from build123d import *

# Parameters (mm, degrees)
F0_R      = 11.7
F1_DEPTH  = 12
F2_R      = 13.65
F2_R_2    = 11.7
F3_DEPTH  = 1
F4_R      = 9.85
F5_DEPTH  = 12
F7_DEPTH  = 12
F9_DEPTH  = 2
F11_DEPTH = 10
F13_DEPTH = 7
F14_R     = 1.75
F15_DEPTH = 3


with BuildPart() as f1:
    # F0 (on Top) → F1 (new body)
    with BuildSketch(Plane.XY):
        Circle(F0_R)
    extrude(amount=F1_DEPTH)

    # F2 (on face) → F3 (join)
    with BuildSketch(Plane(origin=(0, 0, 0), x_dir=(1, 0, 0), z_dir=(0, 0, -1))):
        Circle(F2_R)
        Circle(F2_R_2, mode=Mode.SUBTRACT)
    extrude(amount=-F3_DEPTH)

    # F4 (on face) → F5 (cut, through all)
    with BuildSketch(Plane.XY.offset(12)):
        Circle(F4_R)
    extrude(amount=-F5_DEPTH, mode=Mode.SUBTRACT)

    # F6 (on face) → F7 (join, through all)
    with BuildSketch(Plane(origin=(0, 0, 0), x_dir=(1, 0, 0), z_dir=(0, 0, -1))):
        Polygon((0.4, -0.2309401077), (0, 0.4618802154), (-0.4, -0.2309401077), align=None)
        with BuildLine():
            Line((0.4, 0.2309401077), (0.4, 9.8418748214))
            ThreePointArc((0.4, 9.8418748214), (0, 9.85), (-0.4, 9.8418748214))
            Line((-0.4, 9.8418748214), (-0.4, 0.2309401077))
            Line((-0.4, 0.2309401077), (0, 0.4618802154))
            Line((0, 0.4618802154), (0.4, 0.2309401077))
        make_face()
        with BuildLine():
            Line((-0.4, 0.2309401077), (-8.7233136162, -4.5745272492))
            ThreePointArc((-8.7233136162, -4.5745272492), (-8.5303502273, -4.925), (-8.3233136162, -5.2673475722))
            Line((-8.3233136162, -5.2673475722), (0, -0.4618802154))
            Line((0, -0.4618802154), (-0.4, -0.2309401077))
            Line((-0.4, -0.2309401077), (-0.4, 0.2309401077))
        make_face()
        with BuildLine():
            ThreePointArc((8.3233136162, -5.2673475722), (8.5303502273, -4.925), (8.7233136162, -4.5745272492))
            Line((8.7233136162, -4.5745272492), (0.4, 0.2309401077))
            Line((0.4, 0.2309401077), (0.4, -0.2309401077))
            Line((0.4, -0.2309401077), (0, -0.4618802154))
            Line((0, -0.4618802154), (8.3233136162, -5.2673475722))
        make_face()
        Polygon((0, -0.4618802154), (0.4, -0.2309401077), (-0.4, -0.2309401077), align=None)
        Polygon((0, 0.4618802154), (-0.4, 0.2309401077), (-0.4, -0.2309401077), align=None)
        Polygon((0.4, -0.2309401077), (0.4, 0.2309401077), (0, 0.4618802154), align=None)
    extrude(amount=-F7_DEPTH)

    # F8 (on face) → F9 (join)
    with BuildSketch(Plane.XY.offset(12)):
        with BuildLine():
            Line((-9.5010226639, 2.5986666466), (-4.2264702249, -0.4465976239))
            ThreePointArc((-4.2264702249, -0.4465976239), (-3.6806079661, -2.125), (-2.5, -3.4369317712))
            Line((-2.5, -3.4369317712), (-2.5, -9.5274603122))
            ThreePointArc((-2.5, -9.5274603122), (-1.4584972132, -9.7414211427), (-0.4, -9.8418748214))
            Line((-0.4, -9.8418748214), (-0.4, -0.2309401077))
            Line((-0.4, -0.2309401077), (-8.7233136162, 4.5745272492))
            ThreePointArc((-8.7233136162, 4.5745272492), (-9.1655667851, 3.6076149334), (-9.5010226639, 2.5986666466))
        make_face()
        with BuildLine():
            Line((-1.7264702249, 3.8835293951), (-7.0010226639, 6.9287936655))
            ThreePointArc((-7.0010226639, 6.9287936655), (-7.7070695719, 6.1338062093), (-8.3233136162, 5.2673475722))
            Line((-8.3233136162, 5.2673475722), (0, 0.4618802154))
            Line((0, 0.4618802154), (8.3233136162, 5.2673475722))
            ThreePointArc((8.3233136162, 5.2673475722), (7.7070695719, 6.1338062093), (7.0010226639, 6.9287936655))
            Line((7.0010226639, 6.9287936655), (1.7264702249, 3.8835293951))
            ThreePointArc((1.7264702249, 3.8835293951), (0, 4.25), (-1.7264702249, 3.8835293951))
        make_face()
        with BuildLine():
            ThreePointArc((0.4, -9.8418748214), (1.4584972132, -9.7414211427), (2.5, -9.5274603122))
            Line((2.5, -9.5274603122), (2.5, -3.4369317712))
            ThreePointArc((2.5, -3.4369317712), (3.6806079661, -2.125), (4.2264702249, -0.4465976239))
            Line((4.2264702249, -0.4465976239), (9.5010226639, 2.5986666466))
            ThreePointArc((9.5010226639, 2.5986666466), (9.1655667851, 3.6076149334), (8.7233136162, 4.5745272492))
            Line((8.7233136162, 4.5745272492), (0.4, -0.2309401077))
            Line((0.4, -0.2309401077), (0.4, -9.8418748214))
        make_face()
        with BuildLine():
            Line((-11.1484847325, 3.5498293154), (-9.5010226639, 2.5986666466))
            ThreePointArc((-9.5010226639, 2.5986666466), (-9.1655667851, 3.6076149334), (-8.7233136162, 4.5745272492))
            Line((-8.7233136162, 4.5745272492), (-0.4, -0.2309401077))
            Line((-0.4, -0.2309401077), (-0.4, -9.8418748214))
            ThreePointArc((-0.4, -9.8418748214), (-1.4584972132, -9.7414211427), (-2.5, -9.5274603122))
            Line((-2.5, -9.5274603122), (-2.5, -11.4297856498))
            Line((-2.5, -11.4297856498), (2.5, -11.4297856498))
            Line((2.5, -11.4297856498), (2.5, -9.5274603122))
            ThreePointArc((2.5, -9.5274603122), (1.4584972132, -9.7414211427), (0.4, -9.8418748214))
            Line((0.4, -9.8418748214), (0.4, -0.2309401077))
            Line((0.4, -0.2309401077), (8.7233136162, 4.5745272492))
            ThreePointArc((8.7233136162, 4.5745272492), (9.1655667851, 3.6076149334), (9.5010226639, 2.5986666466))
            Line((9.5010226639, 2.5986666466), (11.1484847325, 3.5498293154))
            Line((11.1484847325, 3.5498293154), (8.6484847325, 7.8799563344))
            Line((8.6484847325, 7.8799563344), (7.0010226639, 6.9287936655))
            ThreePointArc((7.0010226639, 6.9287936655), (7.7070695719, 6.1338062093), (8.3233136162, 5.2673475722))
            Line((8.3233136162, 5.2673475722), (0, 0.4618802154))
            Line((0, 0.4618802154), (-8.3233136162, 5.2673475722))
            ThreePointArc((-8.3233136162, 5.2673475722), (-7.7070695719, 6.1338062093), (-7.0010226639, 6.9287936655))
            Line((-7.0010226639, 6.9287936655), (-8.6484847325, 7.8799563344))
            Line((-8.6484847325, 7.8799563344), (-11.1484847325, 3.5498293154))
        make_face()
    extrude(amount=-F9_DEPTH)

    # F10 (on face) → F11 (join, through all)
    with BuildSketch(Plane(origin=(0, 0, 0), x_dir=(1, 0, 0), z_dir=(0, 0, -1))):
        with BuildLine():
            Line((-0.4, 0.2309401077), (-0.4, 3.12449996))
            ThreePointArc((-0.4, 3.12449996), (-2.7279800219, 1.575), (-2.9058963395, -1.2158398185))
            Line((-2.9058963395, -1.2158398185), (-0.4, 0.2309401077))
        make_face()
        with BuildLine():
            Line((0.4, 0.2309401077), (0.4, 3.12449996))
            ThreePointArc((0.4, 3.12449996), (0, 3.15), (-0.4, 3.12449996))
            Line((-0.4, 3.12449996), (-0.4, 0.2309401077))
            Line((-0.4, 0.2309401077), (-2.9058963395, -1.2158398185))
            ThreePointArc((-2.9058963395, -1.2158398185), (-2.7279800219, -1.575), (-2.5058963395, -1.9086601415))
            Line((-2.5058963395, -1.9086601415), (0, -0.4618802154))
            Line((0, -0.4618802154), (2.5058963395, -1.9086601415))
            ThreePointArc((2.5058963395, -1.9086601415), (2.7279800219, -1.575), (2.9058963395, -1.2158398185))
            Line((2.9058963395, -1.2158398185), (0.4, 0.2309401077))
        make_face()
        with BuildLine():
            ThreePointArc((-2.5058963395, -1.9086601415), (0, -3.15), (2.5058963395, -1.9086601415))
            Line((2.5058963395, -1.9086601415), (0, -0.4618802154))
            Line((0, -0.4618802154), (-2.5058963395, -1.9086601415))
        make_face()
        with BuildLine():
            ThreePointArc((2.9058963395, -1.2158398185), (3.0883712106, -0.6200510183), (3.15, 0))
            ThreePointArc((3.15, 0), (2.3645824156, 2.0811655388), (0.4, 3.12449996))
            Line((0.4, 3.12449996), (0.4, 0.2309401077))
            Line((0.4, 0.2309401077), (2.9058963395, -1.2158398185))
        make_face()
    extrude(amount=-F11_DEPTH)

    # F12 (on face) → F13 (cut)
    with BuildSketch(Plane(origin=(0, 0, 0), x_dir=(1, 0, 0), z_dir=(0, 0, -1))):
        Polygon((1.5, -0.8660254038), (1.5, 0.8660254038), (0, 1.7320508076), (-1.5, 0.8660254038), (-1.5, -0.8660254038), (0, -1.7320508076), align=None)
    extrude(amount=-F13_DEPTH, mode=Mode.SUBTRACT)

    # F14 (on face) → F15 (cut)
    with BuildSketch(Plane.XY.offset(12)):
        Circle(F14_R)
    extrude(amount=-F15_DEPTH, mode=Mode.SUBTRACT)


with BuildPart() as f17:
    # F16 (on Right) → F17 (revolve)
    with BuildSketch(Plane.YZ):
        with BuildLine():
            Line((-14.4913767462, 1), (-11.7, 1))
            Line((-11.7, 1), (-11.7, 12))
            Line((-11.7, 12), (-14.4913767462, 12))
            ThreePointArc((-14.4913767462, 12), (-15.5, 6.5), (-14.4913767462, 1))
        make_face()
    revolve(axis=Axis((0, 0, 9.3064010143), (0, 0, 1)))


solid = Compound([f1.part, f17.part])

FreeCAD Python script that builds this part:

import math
import FreeCAD as App
import Part
import Sketcher
Q = App.Units.Quantity

doc = App.newDocument("Part")
params = doc.addObject("Spreadsheet::Sheet", "Params")
for row, (alias, value) in enumerate([
    ("sketch1_diameter", "23.4 mm"),
    ("pad1_length", "12 mm"),
    ("sketch2_diameter", "27.3 mm"),
    ("sketch2_diameter2", "23.4 mm"),
    ("pad2_length", "1 mm"),
    ("sketch3_diameter", "19.7 mm"),
    ("sketch4_radius", "9.85 mm"),
    ("pad3_length", "12 mm"),
    ("sketch5_width", "5 mm"),
    ("sketch5_radius", "4.25 mm"),
    ("sketch5_length", "5 mm"),
    ("pad4_length", "2 mm"),
    ("sketch6_radius", "3.15 mm"),
    ("pocket2_length", "7 mm"),
    ("sketch8_diameter", "3.5 mm"),
    ("pocket3_length", "3 mm"),
    ("sketch9_radius", "15.5 mm"),
    ("sketch9_height", "11 mm"),
    ("revolution_angle", "360 deg"),
], start=1):
    params.set(f"A{row}", alias)
    params.set(f"B{row}", "=" + value)
    params.setAlias(f"B{row}", alias)

body = doc.addObject("PartDesign::Body", "Body")

# Sketch on XY plane
sketch1 = body.newObject("Sketcher::SketchObject", "Sketch")
sketch1.AttachmentSupport = (doc.getObject("XY_Plane"), [""])
sketch1.MapMode = "FlatFace"
sketch1.addGeometry(Part.Circle(App.Vector(0, 0, 0), App.Vector(0, 0, 1), 11.7), False)
sketch1.addConstraint([
    Sketcher.Constraint("Coincident", 0, 3, -1, 1),
    Sketcher.Constraint("Diameter", 0, 23.4),
])
sketch1.setExpression("Constraints[1]", "Params.sketch1_diameter")
pad1 = body.newObject("PartDesign::Pad", "Pad")
pad1.Profile = sketch1
pad1.setExpression("Length", "Params.pad1_length")

# Sketch on XY plane
sketch2 = body.newObject("Sketcher::SketchObject", "Sketch001")
sketch2.AttachmentSupport = (doc.getObject("XY_Plane"), [""])
sketch2.MapMode = "FlatFace"
sketch2.addGeometry([
    Part.Circle(App.Vector(0, 0, 0), App.Vector(0, 0, 1), 13.65),
    Part.Circle(App.Vector(0, 0, 0), App.Vector(0, 0, 1), 11.7),
], False)
sketch2.addConstraint([
    Sketcher.Constraint("Coincident", 0, 3, -1, 1),
    Sketcher.Constraint("Coincident", 1, 3, -1, 1),
    Sketcher.Constraint("Diameter", 0, 27.3),
    Sketcher.Constraint("Diameter", 1, 23.4),
])
sketch2.setExpression("Constraints[2]", "Params.sketch2_diameter")
sketch2.setExpression("Constraints[3]", "Params.sketch2_diameter2")
pad2 = body.newObject("PartDesign::Pad", "Pad001")
pad2.Profile = sketch2
pad2.setExpression("Length", "Params.pad2_length")

# Sketch on XY plane
sketch3 = body.newObject("Sketcher::SketchObject", "Sketch002")
sketch3.AttachmentSupport = (doc.getObject("XY_Plane"), [""])
sketch3.MapMode = "FlatFace"
sketch3.AttachmentOffset = App.Placement(App.Vector(0, 0, 12), App.Rotation())
sketch3.addGeometry(Part.Circle(App.Vector(0, 0, 0), App.Vector(0, 0, 1), 9.85), False)
sketch3.addConstraint([
    Sketcher.Constraint("Coincident", 0, 3, -1, 1),
    Sketcher.Constraint("Diameter", 0, 19.7),
])
sketch3.setExpression("Constraints[1]", "Params.sketch3_diameter")
pocket1 = body.newObject("PartDesign::Pocket", "Pocket")
pocket1.Profile = sketch3
pocket1.Type = "ThroughAll"

# Sketch on XY plane
sketch4 = body.newObject("Sketcher::SketchObject", "Sketch003")
sketch4.AttachmentSupport = (doc.getObject("XY_Plane"), [""])
sketch4.MapMode = "FlatFace"
sketch4.addGeometry([
    Part.LineSegment(App.Vector(8.723314, 4.574527, 0), App.Vector(0.4, -0.23094, 0)),  # 0
    Part.LineSegment(App.Vector(0.4, -0.23094, 0), App.Vector(0.4, -9.841875, 0)),  # 1
    Part.ArcOfCircle(Part.Circle(App.Vector(0, 0, 0), App.Vector(0, 0, 1), 9.85), math.radians(-92.327372), math.radians(-87.672628)),  # 2
    Part.LineSegment(App.Vector(-0.4, -9.841875, 0), App.Vector(-0.4, -0.23094, 0)),  # 3
    Part.LineSegment(App.Vector(-0.4, -0.23094, 0), App.Vector(-8.723314, 4.574527, 0)),  # 4
    Part.ArcOfCircle(Part.Circle(App.Vector(0, 0, 0), App.Vector(0, 0, 1), 9.85), math.radians(147.672628), math.radians(152.327372)),  # 5
    Part.LineSegment(App.Vector(-8.323314, 5.267348, 0), App.Vector(0, 0.46188, 0)),  # 6
    Part.LineSegment(App.Vector(0, 0.46188, 0), App.Vector(8.323314, 5.267348, 0)),  # 7
    Part.ArcOfCircle(Part.Circle(App.Vector(0, 0, 0), App.Vector(0, 0, 1), 9.85), math.radians(27.672628), math.radians(32.327372)),  # 8
], False)
sketch4.addConstraint([
    Sketcher.Constraint("Coincident", 0, 2, 1, 1),
    Sketcher.Constraint("Coincident", 1, 2, 2, 2),
    Sketcher.Constraint("Coincident", 2, 1, 3, 1),
    Sketcher.Constraint("Coincident", 3, 2, 4, 1),
    Sketcher.Constraint("Coincident", 4, 2, 5, 2),
    Sketcher.Constraint("Coincident", 5, 1, 6, 1),
    Sketcher.Constraint("Coincident", 6, 2, 7, 1),
    Sketcher.Constraint("Coincident", 7, 2, 8, 2),
    Sketcher.Constraint("Coincident", 8, 1, 0, 1),
    Sketcher.Constraint("Vertical", 1),
    Sketcher.Constraint("Vertical", 3),
    Sketcher.Constraint("Coincident", 2, 3, -1, 1),
    Sketcher.Constraint("Coincident", 5, 3, -1, 1),
    Sketcher.Constraint("Coincident", 8, 3, -1, 1),
    Sketcher.Constraint("Equal", 2, 5),
    Sketcher.Constraint("Equal", 5, 8),
    Sketcher.Constraint("Symmetric", 0, 2, 3, 2, -2),
    Sketcher.Constraint("PointOnObject", 6, 2, -2),
    Sketcher.Constraint("Parallel", 4, 6),
    Sketcher.Constraint("Parallel", 0, 7),
    Sketcher.Constraint("Horizontal", 5, 1, 7, 2),
    Sketcher.Constraint("Equal", 4, 6),
    Sketcher.Constraint("Angle", 0, Q("-150 deg")),
    Sketcher.Constraint("Radius", 2, 9.85),
    Sketcher.Constraint("DistanceX", -1, 1, 0, 2, 0.4),
    Sketcher.Constraint("DistanceY", 1, 2, 1, 1, 9.610935),
])
sketch4.setExpression("Constraints[23]", "Params.sketch4_radius")
pad3 = body.newObject("PartDesign::Pad", "Pad002")
pad3.Profile = sketch4
pad3.setExpression("Length", "Params.pad3_length")

# Sketch on XY plane
sketch5 = body.newObject("Sketcher::SketchObject", "Sketch004")
sketch5.AttachmentSupport = (doc.getObject("XY_Plane"), [""])
sketch5.MapMode = "FlatFace"
sketch5.AttachmentOffset = App.Placement(App.Vector(0, 0, 12), App.Rotation())
sketch5.addGeometry([
    Part.LineSegment(App.Vector(-9.501023, 2.598667, 0), App.Vector(-4.22647, -0.446598, 0)),  # 0
    Part.ArcOfCircle(Part.Circle(App.Vector(0, 0, 0), App.Vector(0, 0, 1), 4.25), math.radians(-173.968121), math.radians(-126.031879)),  # 1
    Part.LineSegment(App.Vector(-2.5, -3.436932, 0), App.Vector(-2.5, -11.429786, 0)),  # 2
    Part.LineSegment(App.Vector(-2.5, -11.429786, 0), App.Vector(2.5, -11.429786, 0)),  # 3
    Part.LineSegment(App.Vector(2.5, -11.429786, 0), App.Vector(2.5, -3.436932, 0)),  # 4
    Part.ArcOfCircle(Part.Circle(App.Vector(0, 0, 0), App.Vector(0, 0, 1), 4.25), math.radians(-53.968121), math.radians(-6.031879)),  # 5
    Part.LineSegment(App.Vector(4.22647, -0.446598, 0), App.Vector(9.501023, 2.598667, 0)),  # 6
    Part.LineSegment(App.Vector(9.501023, 2.598667, 0), App.Vector(11.148485, 3.549829, 0)),  # 7
    Part.LineSegment(App.Vector(11.148485, 3.549829, 0), App.Vector(8.648485, 7.879956, 0)),  # 8
    Part.LineSegment(App.Vector(8.648485, 7.879956, 0), App.Vector(7.001023, 6.928794, 0)),  # 9
    Part.LineSegment(App.Vector(7.001023, 6.928794, 0), App.Vector(1.72647, 3.883529, 0)),  # 10
    Part.ArcOfCircle(Part.Circle(App.Vector(0, 0, 0), App.Vector(0, 0, 1), 4.25), math.radians(66.031879), math.radians(113.968121)),  # 11
    Part.LineSegment(App.Vector(-1.72647, 3.883529, 0), App.Vector(-7.001023, 6.928794, 0)),  # 12
    Part.LineSegment(App.Vector(-7.001023, 6.928794, 0), App.Vector(-8.648485, 7.879956, 0)),  # 13
    Part.LineSegment(App.Vector(-8.648485, 7.879956, 0), App.Vector(-11.148485, 3.549829, 0)),  # 14
    Part.LineSegment(App.Vector(-11.148485, 3.549829, 0), App.Vector(-9.501023, 2.598667, 0)),  # 15
], False)
sketch5.addConstraint([
    Sketcher.Constraint("Coincident", 0, 2, 1, 1),
    Sketcher.Constraint("Coincident", 1, 2, 2, 1),
    Sketcher.Constraint("Coincident", 2, 2, 3, 1),
    Sketcher.Constraint("Coincident", 3, 2, 4, 1),
    Sketcher.Constraint("Coincident", 4, 2, 5, 1),
    Sketcher.Constraint("Coincident", 5, 2, 6, 1),
    Sketcher.Constraint("Coincident", 6, 2, 7, 1),
    Sketcher.Constraint("Coincident", 7, 2, 8, 1),
    Sketcher.Constraint("Coincident", 8, 2, 9, 1),
    Sketcher.Constraint("Coincident", 9, 2, 10, 1),
    Sketcher.Constraint("Coincident", 10, 2, 11, 1),
    Sketcher.Constraint("Coincident", 11, 2, 12, 1),
    Sketcher.Constraint("Coincident", 12, 2, 13, 1),
    Sketcher.Constraint("Coincident", 13, 2, 14, 1),
    Sketcher.Constraint("Coincident", 14, 2, 15, 1),
    Sketcher.Constraint("Coincident", 15, 2, 0, 1),
    Sketcher.Constraint("Vertical", 2),
    Sketcher.Constraint("Horizontal", 3),
    Sketcher.Constraint("Vertical", 4),
    Sketcher.Constraint("Coincident", 1, 3, -1, 1),
    Sketcher.Constraint("Coincident", 5, 3, -1, 1),
    Sketcher.Constraint("Coincident", 11, 3, -1, 1),
    Sketcher.Constraint("Equal", 1, 5),
    Sketcher.Constraint("Equal", 5, 11),
    Sketcher.Constraint("Symmetric", 9, 2, 12, 2, -2),
    Sketcher.Constraint("Symmetric", 8, 2, 13, 2, -2),
    Sketcher.Constraint("Symmetric", 7, 2, 14, 2, -2),
    Sketcher.Constraint("Symmetric", 6, 2, 15, 2, -2),
    Sketcher.Constraint("Parallel", 6, 7),
    Sketcher.Constraint("Perpendicular", 7, 8),
    Sketcher.Constraint("Perpendicular", 8, 9),
    Sketcher.Constraint("Parallel", 9, 10),
    Sketcher.Constraint("Parallel", 0, 12),
    Sketcher.Constraint("Parallel", 12, 13),
    Sketcher.Constraint("Horizontal", 1, 2, 4, 2),
    Sketcher.Constraint("Equal", 7, 9),
    Sketcher.Constraint("Equal", 6, 10),
    Sketcher.Constraint("DistanceX", 3, 1, 3, 2, 5.0),
    Sketcher.Constraint("Angle", 0, Q("-30 deg")),
    Sketcher.Constraint("Radius", 1, 4.25),
    Sketcher.Constraint("Distance", 8, 5.0),
    Sketcher.Constraint("DistanceY", 4, 2, 6, 2, 6.035598),
    Sketcher.Constraint("DistanceY", 14, 2, 11, 2, 0.3337),
    Sketcher.Constraint("DistanceY", 2, 2, 2, 1, 7.992854),
])
sketch5.setExpression("Constraints[37]", "Params.sketch5_width")
sketch5.setExpression("Constraints[39]", "Params.sketch5_radius")
sketch5.setExpression("Constraints[40]", "Params.sketch5_length")
pad4 = body.newObject("PartDesign::Pad", "Pad003")
pad4.Profile = sketch5
pad4.setExpression("Length", "Params.pad4_length")
pad4.Reversed = True

# Sketch on XY plane
sketch6 = body.newObject("Sketcher::SketchObject", "Sketch005")
sketch6.AttachmentSupport = (doc.getObject("XY_Plane"), [""])
sketch6.MapMode = "FlatFace"
sketch6.addGeometry([
    Part.ArcOfCircle(Part.Circle(App.Vector(0, 0, 0), App.Vector(0, 0, 1), 3.15), math.radians(157.295351), math.radians(262.704649)),  # 0
    Part.ArcOfCircle(Part.Circle(App.Vector(0, 0, 0), App.Vector(0, 0, 1), 3.15), math.radians(142.704649), math.radians(157.295351)),  # 1
    Part.ArcOfCircle(Part.Circle(App.Vector(0, 0, 0), App.Vector(0, 0, 1), 3.15), math.radians(37.295351), math.radians(142.704649)),  # 2
    Part.ArcOfCircle(Part.Circle(App.Vector(0, 0, 0), App.Vector(0, 0, 1), 3.15), math.radians(22.704649), math.radians(37.295351)),  # 3
    Part.ArcOfCircle(Part.Circle(App.Vector(0, 0, 0), App.Vector(0, 0, 1), 3.15), math.radians(0), math.radians(22.704649)),  # 4
    Part.ArcOfCircle(Part.Circle(App.Vector(0, 0, 0), App.Vector(0, 0, 1), 3.15), math.radians(-82.704649), math.radians(0)),  # 5
    Part.ArcOfCircle(Part.Circle(App.Vector(0, 0, 0), App.Vector(0, 0, 1), 3.15), math.radians(-97.295351), math.radians(-82.704649)),  # 6
], False)
sketch6.addConstraint([
    Sketcher.Constraint("Tangent", 0, 1, 1, 2),
    Sketcher.Constraint("Tangent", 1, 1, 2, 2),
    Sketcher.Constraint("Tangent", 2, 1, 3, 2),
    Sketcher.Constraint("Tangent", 3, 1, 4, 2),
    Sketcher.Constraint("Tangent", 4, 1, 5, 2),
    Sketcher.Constraint("Tangent", 5, 1, 6, 2),
    Sketcher.Constraint("Tangent", 6, 1, 0, 2),
    Sketcher.Constraint("Coincident", 0, 3, -1, 1),
    Sketcher.Constraint("Coincident", 2, 3, -1, 1),
    Sketcher.Constraint("Coincident", 4, 3, -1, 1),
    Sketcher.Constraint("PointOnObject", 4, 1, -1),
    Sketcher.Constraint("Horizontal", 1, 1, 2, 1),
    Sketcher.Constraint("Horizontal", 0, 1, 3, 1),
    Sketcher.Constraint("Horizontal", 5, 1, 6, 1),
    Sketcher.Constraint("Radius", 0, 3.15),
    Sketcher.Constraint("DistanceX", -1, 1, 5, 1, 0.4),
    Sketcher.Constraint("DistanceX", 0, 1, 1, 1, 0.4),
    Sketcher.Constraint("DistanceY", -1, 1, 0, 1, 1.21584),
])
sketch6.setExpression("Constraints[14]", "Params.sketch6_radius")
pad5 = body.newObject("PartDesign::Pad", "Pad004")
pad5.Profile = sketch6
pad5.Type = "UpToLast"

# Sketch on XY plane
sketch7 = body.newObject("Sketcher::SketchObject", "Sketch006")
sketch7.AttachmentSupport = (doc.getObject("XY_Plane"), [""])
sketch7.MapMode = "FlatFace"
sketch7.addGeometry([
    Part.LineSegment(App.Vector(1.5, 0.866025, 0), App.Vector(1.5, -0.866025, 0)),  # 0
    Part.LineSegment(App.Vector(1.5, -0.866025, 0), App.Vector(0, -1.732051, 0)),  # 1
    Part.LineSegment(App.Vector(0, -1.732051, 0), App.Vector(-1.5, -0.866025, 0)),  # 2
    Part.LineSegment(App.Vector(-1.5, -0.866025, 0), App.Vector(-1.5, 0.866025, 0)),  # 3
    Part.LineSegment(App.Vector(-1.5, 0.866025, 0), App.Vector(0, 1.732051, 0)),  # 4
    Part.LineSegment(App.Vector(0, 1.732051, 0), App.Vector(1.5, 0.866025, 0)),  # 5
], False)
sketch7.addConstraint([
    Sketcher.Constraint("Coincident", 0, 2, 1, 1),
    Sketcher.Constraint("Coincident", 1, 2, 2, 1),
    Sketcher.Constraint("Coincident", 2, 2, 3, 1),
    Sketcher.Constraint("Coincident", 3, 2, 4, 1),
    Sketcher.Constraint("Coincident", 4, 2, 5, 1),
    Sketcher.Constraint("Coincident", 5, 2, 0, 1),
    Sketcher.Constraint("Vertical", 0),
    Sketcher.Constraint("Vertical", 3),
    Sketcher.Constraint("Symmetric", 0, 2, 3, 2, -1, 1),
    Sketcher.Constraint("Symmetric", 1, 2, 4, 2, -1, 1),
    Sketcher.Constraint("PointOnObject", 1, 2, -2),
    Sketcher.Constraint("Parallel", 2, 5),
    Sketcher.Constraint("Horizontal", 0, 2, 2, 2),
    Sketcher.Constraint("Angle", 1, Q("-150 deg")),
    Sketcher.Constraint("DistanceX", 2, 2, 0, 2, 3.0),
    Sketcher.Constraint("DistanceY", 0, 2, 0, 1, 1.732051),
])
pocket2 = body.newObject("PartDesign::Pocket", "Pocket001")
pocket2.Profile = sketch7
pocket2.setExpression("Length", "Params.pocket2_length")
pocket2.Reversed = True

# Sketch on XY plane
sketch8 = body.newObject("Sketcher::SketchObject", "Sketch007")
sketch8.AttachmentSupport = (doc.getObject("XY_Plane"), [""])
sketch8.MapMode = "FlatFace"
sketch8.AttachmentOffset = App.Placement(App.Vector(0, 0, 12), App.Rotation())
sketch8.addGeometry(Part.Circle(App.Vector(0, 0, 0), App.Vector(0, 0, 1), 1.75), False)
sketch8.addConstraint([
    Sketcher.Constraint("Coincident", 0, 3, -1, 1),
    Sketcher.Constraint("Diameter", 0, 3.5),
])
sketch8.setExpression("Constraints[1]", "Params.sketch8_diameter")
pocket3 = body.newObject("PartDesign::Pocket", "Pocket002")
pocket3.Profile = sketch8
pocket3.setExpression("Length", "Params.pocket3_length")
body2 = doc.addObject("PartDesign::Body", "Body001")

# Sketch on YZ plane
sketch9 = body2.newObject("Sketcher::SketchObject", "Sketch008")
sketch9.AttachmentSupport = (doc.getObject("YZ_Plane001"), [""])
sketch9.MapMode = "FlatFace"
sketch9.addGeometry([
    Part.LineSegment(App.Vector(-14.491377, 1, 0), App.Vector(-11.7, 1, 0)),
    Part.LineSegment(App.Vector(-11.7, 1, 0), App.Vector(-11.7, 12, 0)),
    Part.LineSegment(App.Vector(-11.7, 12, 0), App.Vector(-14.491377, 12, 0)),
    Part.ArcOfCircle(Part.Circle(App.Vector(0, 6.5, 0), App.Vector(0, 0, 1), 15.5), math.radians(159.21644), math.radians(200.78356)),
], False)
sketch9.addConstraint([
    Sketcher.Constraint("Coincident", 0, 2, 1, 1),
    Sketcher.Constraint("Coincident", 1, 2, 2, 1),
    Sketcher.Constraint("Coincident", 2, 2, 3, 1),
    Sketcher.Constraint("Coincident", 3, 2, 0, 1),
    Sketcher.Constraint("Horizontal", 0),
    Sketcher.Constraint("Vertical", 1),
    Sketcher.Constraint("Horizontal", 2),
    Sketcher.Constraint("PointOnObject", 3, 3, -2),
    Sketcher.Constraint("Vertical", 2, 2, 3, 2),
    Sketcher.Constraint("Radius", 3, 15.5),
    Sketcher.Constraint("DistanceY", 1, 1, 1, 2, 11.0),
    Sketcher.Constraint("DistanceY", -1, 1, 0, 2, 1.0),
    Sketcher.Constraint("DistanceX", 0, 2, -1, 1, 11.7),
])
sketch9.setExpression("Constraints[9]", "Params.sketch9_radius")
sketch9.setExpression("Constraints[10]", "Params.sketch9_height")
revolution = body2.newObject("PartDesign::Revolution", "Revolution")
revolution.Profile = sketch9
revolution.ReferenceAxis = (sketch9, ["V_Axis"])
revolution.setExpression("Angle", "Params.revolution_angle")

doc.recompute()
